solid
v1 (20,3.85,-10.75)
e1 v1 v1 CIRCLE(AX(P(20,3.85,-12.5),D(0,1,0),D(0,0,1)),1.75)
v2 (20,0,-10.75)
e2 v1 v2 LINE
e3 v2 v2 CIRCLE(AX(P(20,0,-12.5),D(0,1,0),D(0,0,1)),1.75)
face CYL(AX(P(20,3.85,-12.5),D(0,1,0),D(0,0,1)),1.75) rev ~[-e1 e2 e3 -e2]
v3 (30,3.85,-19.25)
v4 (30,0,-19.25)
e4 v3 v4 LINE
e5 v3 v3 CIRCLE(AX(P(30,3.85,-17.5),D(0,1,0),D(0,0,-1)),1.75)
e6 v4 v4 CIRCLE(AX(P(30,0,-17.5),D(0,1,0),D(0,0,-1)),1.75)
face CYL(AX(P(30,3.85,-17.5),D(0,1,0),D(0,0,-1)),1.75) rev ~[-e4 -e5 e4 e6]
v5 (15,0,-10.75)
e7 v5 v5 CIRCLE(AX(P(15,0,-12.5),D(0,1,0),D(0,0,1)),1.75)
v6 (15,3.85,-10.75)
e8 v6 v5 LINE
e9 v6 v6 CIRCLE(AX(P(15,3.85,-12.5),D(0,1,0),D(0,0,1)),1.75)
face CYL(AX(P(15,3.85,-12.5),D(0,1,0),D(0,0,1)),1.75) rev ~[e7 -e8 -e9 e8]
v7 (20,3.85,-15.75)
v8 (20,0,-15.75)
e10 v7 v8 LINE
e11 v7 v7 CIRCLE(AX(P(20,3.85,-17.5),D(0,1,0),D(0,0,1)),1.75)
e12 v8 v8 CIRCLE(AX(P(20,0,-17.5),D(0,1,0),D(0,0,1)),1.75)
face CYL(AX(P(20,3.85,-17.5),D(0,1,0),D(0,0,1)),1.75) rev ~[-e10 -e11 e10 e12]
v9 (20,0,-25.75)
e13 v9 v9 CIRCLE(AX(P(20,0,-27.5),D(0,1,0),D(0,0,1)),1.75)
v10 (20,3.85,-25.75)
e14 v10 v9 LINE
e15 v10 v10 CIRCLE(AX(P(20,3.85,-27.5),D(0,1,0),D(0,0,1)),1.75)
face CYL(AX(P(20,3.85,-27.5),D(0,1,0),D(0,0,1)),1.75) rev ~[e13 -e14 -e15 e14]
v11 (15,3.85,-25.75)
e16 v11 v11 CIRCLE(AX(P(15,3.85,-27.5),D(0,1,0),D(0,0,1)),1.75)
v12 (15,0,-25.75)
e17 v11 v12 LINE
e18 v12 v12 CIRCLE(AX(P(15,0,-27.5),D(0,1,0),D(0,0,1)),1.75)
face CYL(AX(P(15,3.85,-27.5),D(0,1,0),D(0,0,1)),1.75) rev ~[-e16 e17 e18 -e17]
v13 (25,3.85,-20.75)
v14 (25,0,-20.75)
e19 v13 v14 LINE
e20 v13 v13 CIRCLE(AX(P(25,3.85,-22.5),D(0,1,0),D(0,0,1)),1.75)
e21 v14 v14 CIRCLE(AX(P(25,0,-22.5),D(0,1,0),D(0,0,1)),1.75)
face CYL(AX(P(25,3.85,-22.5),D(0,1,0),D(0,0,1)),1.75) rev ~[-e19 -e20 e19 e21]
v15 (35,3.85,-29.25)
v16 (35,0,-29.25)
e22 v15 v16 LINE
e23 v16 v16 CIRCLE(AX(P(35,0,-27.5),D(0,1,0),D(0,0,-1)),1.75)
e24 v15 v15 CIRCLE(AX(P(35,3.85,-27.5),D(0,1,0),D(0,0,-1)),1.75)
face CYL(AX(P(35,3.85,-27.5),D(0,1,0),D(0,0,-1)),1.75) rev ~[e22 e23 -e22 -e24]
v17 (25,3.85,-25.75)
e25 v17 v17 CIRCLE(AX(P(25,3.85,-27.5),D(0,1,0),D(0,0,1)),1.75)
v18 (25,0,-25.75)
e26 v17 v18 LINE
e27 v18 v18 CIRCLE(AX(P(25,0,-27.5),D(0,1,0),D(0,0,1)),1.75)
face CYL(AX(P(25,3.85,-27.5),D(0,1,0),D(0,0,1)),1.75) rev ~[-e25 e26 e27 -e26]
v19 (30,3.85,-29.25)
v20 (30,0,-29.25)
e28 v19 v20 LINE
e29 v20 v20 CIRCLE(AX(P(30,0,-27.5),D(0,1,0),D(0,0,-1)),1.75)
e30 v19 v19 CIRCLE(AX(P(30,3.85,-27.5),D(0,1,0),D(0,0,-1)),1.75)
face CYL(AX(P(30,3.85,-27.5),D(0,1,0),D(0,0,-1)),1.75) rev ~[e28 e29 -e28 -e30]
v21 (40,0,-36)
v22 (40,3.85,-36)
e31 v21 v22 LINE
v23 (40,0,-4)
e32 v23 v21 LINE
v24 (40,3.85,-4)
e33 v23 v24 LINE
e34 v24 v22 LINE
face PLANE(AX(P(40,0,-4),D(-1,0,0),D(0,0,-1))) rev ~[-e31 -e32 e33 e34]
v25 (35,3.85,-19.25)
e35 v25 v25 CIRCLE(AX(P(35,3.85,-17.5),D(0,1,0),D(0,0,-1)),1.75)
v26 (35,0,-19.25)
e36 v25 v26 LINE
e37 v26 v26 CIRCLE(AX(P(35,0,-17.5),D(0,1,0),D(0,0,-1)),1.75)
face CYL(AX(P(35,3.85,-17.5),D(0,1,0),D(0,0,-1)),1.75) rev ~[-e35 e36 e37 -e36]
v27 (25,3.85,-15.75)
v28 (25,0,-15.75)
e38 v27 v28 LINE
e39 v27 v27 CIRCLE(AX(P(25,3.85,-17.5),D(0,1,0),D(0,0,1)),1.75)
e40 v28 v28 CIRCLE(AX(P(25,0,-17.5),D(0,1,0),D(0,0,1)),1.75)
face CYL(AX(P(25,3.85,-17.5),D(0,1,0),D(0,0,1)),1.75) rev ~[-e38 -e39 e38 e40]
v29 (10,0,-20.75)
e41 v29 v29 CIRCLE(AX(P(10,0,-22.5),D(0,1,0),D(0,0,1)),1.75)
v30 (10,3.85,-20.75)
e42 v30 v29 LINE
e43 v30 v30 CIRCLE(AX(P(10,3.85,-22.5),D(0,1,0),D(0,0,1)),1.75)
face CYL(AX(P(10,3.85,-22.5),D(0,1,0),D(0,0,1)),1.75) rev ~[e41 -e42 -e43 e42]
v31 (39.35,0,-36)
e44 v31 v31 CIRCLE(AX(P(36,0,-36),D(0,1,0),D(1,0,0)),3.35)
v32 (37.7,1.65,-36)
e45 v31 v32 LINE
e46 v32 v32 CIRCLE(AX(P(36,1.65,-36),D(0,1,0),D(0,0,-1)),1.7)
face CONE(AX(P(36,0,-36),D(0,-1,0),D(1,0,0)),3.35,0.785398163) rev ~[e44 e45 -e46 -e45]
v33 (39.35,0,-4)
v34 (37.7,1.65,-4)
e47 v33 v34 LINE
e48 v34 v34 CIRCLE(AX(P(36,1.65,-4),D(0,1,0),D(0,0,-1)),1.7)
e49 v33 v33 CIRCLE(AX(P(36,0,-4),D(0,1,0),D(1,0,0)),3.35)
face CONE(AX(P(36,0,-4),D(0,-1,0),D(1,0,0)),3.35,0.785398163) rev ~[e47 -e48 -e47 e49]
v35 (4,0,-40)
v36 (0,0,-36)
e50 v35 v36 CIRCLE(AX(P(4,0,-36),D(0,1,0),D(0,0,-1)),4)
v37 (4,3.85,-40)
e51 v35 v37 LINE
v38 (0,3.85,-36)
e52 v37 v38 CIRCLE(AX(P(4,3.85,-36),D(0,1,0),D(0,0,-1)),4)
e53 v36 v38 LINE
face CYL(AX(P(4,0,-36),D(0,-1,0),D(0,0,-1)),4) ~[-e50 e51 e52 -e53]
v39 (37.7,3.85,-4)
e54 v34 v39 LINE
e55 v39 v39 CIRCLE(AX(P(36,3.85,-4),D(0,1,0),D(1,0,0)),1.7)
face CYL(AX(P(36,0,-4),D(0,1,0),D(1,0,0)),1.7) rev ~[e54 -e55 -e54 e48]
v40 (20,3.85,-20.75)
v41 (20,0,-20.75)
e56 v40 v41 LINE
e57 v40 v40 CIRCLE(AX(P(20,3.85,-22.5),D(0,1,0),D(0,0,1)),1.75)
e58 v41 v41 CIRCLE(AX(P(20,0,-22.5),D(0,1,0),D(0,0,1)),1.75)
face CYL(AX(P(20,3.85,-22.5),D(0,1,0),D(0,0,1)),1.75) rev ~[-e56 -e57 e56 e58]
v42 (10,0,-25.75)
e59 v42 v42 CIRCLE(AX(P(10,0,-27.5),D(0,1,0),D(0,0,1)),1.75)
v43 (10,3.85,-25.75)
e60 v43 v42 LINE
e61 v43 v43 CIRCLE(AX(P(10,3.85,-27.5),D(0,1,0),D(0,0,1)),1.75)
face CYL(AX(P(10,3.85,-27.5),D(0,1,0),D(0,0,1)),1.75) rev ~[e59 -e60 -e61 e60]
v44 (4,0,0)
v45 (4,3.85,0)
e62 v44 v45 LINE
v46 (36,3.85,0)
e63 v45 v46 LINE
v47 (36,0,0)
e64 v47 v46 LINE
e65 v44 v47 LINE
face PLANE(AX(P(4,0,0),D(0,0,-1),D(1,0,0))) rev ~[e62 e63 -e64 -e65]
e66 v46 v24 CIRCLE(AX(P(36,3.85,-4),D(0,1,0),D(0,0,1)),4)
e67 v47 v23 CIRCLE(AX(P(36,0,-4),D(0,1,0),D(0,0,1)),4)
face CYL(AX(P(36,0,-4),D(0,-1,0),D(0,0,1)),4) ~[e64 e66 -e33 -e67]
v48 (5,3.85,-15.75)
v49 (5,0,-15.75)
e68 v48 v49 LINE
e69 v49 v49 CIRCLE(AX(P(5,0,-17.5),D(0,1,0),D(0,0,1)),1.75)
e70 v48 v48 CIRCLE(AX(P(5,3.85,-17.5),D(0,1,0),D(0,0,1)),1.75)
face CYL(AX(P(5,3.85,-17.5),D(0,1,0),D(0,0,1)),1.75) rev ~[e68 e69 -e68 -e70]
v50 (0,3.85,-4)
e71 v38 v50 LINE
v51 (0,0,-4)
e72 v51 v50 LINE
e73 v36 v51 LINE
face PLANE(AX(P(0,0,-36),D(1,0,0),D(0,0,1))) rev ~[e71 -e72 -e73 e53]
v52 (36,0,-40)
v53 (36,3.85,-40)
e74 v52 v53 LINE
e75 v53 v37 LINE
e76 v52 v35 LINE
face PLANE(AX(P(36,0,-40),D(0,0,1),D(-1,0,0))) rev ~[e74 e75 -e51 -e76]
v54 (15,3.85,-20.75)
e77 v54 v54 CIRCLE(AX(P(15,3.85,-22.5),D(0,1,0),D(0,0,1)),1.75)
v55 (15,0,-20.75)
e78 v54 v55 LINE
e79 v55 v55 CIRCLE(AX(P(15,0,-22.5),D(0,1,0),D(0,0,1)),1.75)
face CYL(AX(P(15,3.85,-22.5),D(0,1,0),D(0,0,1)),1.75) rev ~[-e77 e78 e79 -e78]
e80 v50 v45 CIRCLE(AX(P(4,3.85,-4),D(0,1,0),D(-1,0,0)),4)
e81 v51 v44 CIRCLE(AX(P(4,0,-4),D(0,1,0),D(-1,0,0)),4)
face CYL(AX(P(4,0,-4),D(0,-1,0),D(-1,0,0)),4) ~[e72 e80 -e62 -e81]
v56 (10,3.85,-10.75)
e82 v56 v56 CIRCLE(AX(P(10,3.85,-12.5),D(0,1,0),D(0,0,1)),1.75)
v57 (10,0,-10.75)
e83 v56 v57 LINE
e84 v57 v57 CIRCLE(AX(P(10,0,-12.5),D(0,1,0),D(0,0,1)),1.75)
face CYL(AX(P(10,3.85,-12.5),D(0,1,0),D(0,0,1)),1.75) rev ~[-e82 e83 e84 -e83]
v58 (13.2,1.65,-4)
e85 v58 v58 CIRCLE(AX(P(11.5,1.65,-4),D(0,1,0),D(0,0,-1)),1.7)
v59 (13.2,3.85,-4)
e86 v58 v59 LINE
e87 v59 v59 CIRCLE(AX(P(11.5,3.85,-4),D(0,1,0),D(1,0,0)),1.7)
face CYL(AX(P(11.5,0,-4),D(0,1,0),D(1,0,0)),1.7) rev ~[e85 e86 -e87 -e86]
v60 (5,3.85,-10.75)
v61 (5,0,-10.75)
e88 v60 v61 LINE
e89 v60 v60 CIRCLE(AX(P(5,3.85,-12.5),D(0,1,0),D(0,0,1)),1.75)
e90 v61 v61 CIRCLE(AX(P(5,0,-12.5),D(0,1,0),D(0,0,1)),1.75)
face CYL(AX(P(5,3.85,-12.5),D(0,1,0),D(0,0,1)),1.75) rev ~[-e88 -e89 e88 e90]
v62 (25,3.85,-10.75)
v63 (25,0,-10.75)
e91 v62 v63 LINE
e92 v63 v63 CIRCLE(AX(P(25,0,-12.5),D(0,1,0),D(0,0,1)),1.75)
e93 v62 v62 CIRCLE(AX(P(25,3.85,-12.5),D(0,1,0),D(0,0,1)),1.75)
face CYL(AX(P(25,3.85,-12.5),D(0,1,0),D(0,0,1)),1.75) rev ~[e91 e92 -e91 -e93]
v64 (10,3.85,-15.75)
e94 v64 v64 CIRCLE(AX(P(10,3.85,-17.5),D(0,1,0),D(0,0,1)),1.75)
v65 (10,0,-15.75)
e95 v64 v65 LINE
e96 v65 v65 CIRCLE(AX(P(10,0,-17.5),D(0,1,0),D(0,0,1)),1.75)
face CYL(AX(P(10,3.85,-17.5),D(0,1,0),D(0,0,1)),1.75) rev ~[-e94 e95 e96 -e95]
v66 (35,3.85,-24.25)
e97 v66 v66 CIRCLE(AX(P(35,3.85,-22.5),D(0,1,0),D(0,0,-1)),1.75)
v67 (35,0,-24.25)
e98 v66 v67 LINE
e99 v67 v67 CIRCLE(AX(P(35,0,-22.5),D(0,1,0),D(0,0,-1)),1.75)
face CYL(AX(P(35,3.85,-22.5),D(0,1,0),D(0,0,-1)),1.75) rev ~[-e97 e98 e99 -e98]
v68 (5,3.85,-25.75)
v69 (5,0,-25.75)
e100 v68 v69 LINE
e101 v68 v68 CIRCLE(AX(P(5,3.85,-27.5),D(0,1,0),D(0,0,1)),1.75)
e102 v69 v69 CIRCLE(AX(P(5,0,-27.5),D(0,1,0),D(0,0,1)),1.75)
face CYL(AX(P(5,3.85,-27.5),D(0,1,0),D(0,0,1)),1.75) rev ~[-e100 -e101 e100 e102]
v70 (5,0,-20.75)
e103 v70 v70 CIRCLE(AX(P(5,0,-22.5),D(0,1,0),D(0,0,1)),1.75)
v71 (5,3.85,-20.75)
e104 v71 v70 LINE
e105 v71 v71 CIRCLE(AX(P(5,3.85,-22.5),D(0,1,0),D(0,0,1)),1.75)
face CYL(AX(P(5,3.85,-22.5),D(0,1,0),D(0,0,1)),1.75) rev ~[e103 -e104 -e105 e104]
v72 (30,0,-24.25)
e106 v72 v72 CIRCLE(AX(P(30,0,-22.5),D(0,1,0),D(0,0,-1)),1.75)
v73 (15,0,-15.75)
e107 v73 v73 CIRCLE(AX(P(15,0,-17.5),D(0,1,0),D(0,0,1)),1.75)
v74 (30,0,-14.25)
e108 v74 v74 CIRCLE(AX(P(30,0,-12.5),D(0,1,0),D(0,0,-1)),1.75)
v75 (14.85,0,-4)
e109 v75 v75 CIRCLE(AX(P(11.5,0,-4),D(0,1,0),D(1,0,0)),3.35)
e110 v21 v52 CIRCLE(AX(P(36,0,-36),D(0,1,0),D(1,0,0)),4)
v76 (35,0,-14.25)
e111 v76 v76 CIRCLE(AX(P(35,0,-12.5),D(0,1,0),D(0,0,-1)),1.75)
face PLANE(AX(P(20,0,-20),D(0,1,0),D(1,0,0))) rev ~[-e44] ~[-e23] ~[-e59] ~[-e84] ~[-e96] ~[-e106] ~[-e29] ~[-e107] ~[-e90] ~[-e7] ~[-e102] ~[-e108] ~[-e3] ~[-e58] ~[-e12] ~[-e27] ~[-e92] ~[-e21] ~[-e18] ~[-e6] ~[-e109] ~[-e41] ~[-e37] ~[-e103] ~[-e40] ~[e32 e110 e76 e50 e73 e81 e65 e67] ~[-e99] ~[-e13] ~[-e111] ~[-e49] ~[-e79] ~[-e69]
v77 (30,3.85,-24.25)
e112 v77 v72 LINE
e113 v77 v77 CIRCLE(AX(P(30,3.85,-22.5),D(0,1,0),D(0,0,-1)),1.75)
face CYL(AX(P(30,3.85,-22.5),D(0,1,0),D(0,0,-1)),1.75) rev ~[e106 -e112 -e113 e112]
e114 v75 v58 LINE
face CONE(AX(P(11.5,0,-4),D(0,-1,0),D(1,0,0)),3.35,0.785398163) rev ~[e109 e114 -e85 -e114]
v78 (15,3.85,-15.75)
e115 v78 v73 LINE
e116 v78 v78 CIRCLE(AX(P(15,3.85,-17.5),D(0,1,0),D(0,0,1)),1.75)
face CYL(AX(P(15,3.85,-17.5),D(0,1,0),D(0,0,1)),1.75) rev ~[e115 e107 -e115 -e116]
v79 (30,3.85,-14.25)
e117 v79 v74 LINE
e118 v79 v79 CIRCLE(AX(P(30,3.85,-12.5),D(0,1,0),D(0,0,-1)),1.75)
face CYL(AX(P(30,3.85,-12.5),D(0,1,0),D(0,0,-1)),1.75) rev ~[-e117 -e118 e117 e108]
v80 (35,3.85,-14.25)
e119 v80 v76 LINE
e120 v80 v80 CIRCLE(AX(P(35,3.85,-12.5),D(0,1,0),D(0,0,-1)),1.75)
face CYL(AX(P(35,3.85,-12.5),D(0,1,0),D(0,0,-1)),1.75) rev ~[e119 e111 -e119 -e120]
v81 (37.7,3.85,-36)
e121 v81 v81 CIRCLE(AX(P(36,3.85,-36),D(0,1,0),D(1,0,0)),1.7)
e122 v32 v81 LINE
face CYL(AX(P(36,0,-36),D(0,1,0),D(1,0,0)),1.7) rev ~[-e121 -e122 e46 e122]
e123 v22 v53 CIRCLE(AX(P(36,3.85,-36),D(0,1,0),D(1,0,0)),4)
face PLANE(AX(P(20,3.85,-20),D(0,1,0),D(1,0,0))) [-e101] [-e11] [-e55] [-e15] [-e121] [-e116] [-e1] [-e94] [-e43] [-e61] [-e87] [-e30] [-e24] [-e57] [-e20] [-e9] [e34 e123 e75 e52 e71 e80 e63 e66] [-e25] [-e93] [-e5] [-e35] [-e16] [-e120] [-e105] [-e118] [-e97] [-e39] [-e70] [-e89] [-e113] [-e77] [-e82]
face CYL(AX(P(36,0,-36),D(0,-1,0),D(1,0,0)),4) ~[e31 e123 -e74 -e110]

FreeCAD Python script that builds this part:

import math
import FreeCAD as App
import Part
import Sketcher

V = App.Vector

doc = App.newDocument("Part")
body = doc.addObject("PartDesign::Body", "Body")

# Sketch on XZ plane
sketch1 = body.newObject("Sketcher::SketchObject", "Sketch")
sketch1.AttachmentSupport = (doc.getObject("XZ_Plane"), [""])
sketch1.MapMode = "FlatFace"
sketch1.addGeometry([
    Part.LineSegment(V(4, 0, 0), V(36, 0, 0)),  # 0
    Part.ArcOfCircle(Part.Circle(V(36, -4, 0), V(0, 0, 1), 4), math.radians(0), math.radians(90)),  # 1
    Part.LineSegment(V(40, -4, 0), V(40, -36, 0)),  # 2
    Part.ArcOfCircle(Part.Circle(V(36, -36, 0), V(0, 0, 1), 4), math.radians(-90), math.radians(0)),  # 3
    Part.LineSegment(V(36, -40, 0), V(4, -40, 0)),  # 4
    Part.ArcOfCircle(Part.Circle(V(4, -36, 0), V(0, 0, 1), 4), math.radians(180), math.radians(270)),  # 5
    Part.LineSegment(V(0, -36, 0), V(0, -4, 0)),  # 6
    Part.ArcOfCircle(Part.Circle(V(4, -4, 0), V(0, 0, 1), 4), math.radians(90), math.radians(180)),  # 7
    Part.Circle(V(11.5, -4, 0), V(0, 0, 1), 1.6),  # 8
    Part.Circle(V(36, -4, 0), V(0, 0, 1), 1.6),  # 9
    Part.Circle(V(36, -36, 0), V(0, 0, 1), 1.6),  # 10
], False)
sketch1.addConstraint([
    Sketcher.Constraint("Tangent", 0, 2, 1, 2),
    Sketcher.Constraint("Tangent", 1, 1, 2, 1),
    Sketcher.Constraint("Tangent", 2, 2, 3, 2),
    Sketcher.Constraint("Tangent", 3, 1, 4, 1),
    Sketcher.Constraint("Tangent", 4, 2, 5, 2),
    Sketcher.Constraint("Tangent", 5, 1, 6, 1),
    Sketcher.Constraint("Tangent", 6, 2, 7, 2),
    Sketcher.Constraint("Tangent", 7, 1, 0, 1),
    Sketcher.Constraint("Horizontal", 0),
    Sketcher.Constraint("Vertical", 2),
    Sketcher.Constraint("Horizontal", 4),
    Sketcher.Constraint("Vertical", 6),
    Sketcher.Constraint("Coincident", 9, 3, 1, 3),
    Sketcher.Constraint("Coincident", 10, 3, 3, 3),
    Sketcher.Constraint("Equal", 1, 3),
    Sketcher.Constraint("Equal", 3, 5),
    Sketcher.Constraint("Equal", 5, 7),
    Sketcher.Constraint("Equal", 8, 9),
    Sketcher.Constraint("Equal", 9, 10),
    Sketcher.Constraint("PointOnObject", 0, 2, -1),
    Sketcher.Constraint("PointOnObject", 5, 1, -2),
    Sketcher.Constraint("Horizontal", 7, 3, 8, 3),
    Sketcher.Constraint("Equal", 4, 2),
    Sketcher.Constraint("Radius", 1, 4.0),
    Sketcher.Constraint("Diameter", 8, 3.2),
    Sketcher.Constraint("DistanceX", 0, 1, 0, 2, 32.0),
    Sketcher.Constraint("DistanceX", -1, 1, 8, 3, 11.5),
])
pad1 = body.newObject("PartDesign::Pad", "Pad")
pad1.Profile = sketch1
pad1.Length = 3.85
pad1.Reversed = True

# Sketch on XZ plane
sketch2 = body.newObject("Sketcher::SketchObject", "Sketch001")
sketch2.AttachmentSupport = (doc.getObject("XZ_Plane"), [""])
sketch2.MapMode = "FlatFace"
sketch2.addGeometry([
    Part.Circle(V(11.5, -4, 0), V(0, 0, 1), 1.7),
    Part.Circle(V(36, -4, 0), V(0, 0, 1), 1.7),
    Part.Circle(V(36, -36, 0), V(0, 0, 1), 1.7),
], False)
sketch2.addConstraint([
    Sketcher.Constraint("Equal", 0, 1),
    Sketcher.Constraint("Equal", 1, 2),
    Sketcher.Constraint("Horizontal", 0, 3, 1, 3),
    Sketcher.Constraint("Vertical", 1, 3, 2, 3),
    Sketcher.Constraint("Diameter", 0, 3.4),
    Sketcher.Constraint("DistanceY", 0, 3, -1, 1, 4.0),
    Sketcher.Constraint("DistanceX", -1, 1, 1, 3, 36.0),
    Sketcher.Constraint("DistanceY", 2, 3, -1, 1, 36.0),
    Sketcher.Constraint("DistanceX", -1, 1, 0, 3, 11.5),
])
doc.recompute()
hole = body.newObject("PartDesign::Hole", "Hole")
hole.Profile = sketch2
hole.ThreadType = "None"
hole.Diameter = 3.4
hole.DepthType = "ThroughAll"
hole.HoleCutType = "Countersink"
hole.HoleCutDiameter = 6.7
hole.HoleCutCountersinkAngle = 90

# Sketch on XZ plane
sketch3 = body.newObject("Sketcher::SketchObject", "Sketch002")
sketch3.AttachmentSupport = (doc.getObject("XZ_Plane"), [""])
sketch3.MapMode = "FlatFace"
sketch3.AttachmentOffset = App.Placement(V(0, 0, -3.85), App.Rotation())
sketch3.addGeometry([
    Part.Circle(V(5, -22.5, 0), V(0, 0, 1), 1.8),  # 0
    Part.Circle(V(10, -22.5, 0), V(0, 0, 1), 1.8),  # 1
    Part.Circle(V(5, -17.5, 0), V(0, 0, 1), 1.8),  # 2
    Part.Circle(V(10, -17.5, 0), V(0, 0, 1), 1.8),  # 3
    Part.Circle(V(30, -17.5, 0), V(0, 0, 1), 1.8),  # 4
    Part.Circle(V(35, -17.5, 0), V(0, 0, 1), 1.8),  # 5
    Part.Circle(V(30, -22.5, 0), V(0, 0, 1), 1.8),  # 6
    Part.Circle(V(35, -22.5, 0), V(0, 0, 1), 1.8),  # 7
    Part.Circle(V(15, -22.5, 0), V(0, 0, 1), 1.8),  # 8
    Part.Circle(V(15, -17.5, 0), V(0, 0, 1), 1.8),  # 9
    Part.Circle(V(20, -22.5, 0), V(0, 0, 1), 1.8),  # 10
    Part.Circle(V(20, -17.5, 0), V(0, 0, 1), 1.8),  # 11
    Part.Circle(V(25, -22.5, 0), V(0, 0, 1), 1.8),  # 12
    Part.Circle(V(25, -17.5, 0), V(0, 0, 1), 1.8),  # 13
    Part.Circle(V(5, -27.5, 0), V(0, 0, 1), 1.8),  # 14
    Part.Circle(V(10, -27.5, 0), V(0, 0, 1), 1.8),  # 15
    Part.Circle(V(30, -27.5, 0), V(0, 0, 1), 1.8),  # 16
    Part.Circle(V(35, -27.5, 0), V(0, 0, 1), 1.8),  # 17
    Part.Circle(V(15, -27.5, 0), V(0, 0, 1), 1.8),  # 18
    Part.Circle(V(20, -27.5, 0), V(0, 0, 1), 1.8),  # 19
    Part.Circle(V(25, -27.5, 0), V(0, 0, 1), 1.8),  # 20
    Part.Circle(V(5, -12.5, 0), V(0, 0, 1), 1.8),  # 21
    Part.Circle(V(10, -12.5, 0), V(0, 0, 1), 1.8),  # 22
    Part.Circle(V(30, -12.5, 0), V(0, 0, 1), 1.8),  # 23
    Part.Circle(V(35, -12.5, 0), V(0, 0, 1), 1.8),  # 24
    Part.Circle(V(15, -12.5, 0), V(0, 0, 1), 1.8),  # 25
    Part.Circle(V(20, -12.5, 0), V(0, 0, 1), 1.8),  # 26
    Part.Circle(V(25, -12.5, 0), V(0, 0, 1), 1.8),  # 27
], False)
sketch3.addConstraint([
    Sketcher.Constraint("Equal", 0, 1),
    Sketcher.Constraint("Equal", 1, 2),
    Sketcher.Constraint("Equal", 2, 3),
    Sketcher.Constraint("Equal", 3, 4),
    Sketcher.Constraint("Equal", 4, 5),
    Sketcher.Constraint("Equal", 5, 6),
    Sketcher.Constraint("Equal", 6, 7),
    Sketcher.Constraint("Equal", 7, 8),
    Sketcher.Constraint("Equal", 8, 9),
    Sketcher.Constraint("Equal", 9, 10),
    Sketcher.Constraint("Equal", 10, 11),
    Sketcher.Constraint("Equal", 11, 12),
    Sketcher.Constraint("Equal", 12, 13),
    Sketcher.Constraint("Equal", 13, 14),
    Sketcher.Constraint("Equal", 14, 15),
    Sketcher.Constraint("Equal", 15, 16),
    Sketcher.Constraint("Equal", 16, 17),
    Sketcher.Constraint("Equal", 17, 18),
    Sketcher.Constraint("Equal", 18, 19),
    Sketcher.Constraint("Equal", 19, 20),
    Sketcher.Constraint("Equal", 20, 21),
    Sketcher.Constraint("Equal", 21, 22),
    Sketcher.Constraint("Equal", 22, 23),
    Sketcher.Constraint("Equal", 23, 24),
    Sketcher.Constraint("Equal", 24, 25),
    Sketcher.Constraint("Equal", 25, 26),
    Sketcher.Constraint("Equal", 26, 27),
    Sketcher.Constraint("Horizontal", 0, 3, 1, 3),
    Sketcher.Constraint("Horizontal", 2, 3, 3, 3),
    Sketcher.Constraint("Horizontal", 3, 3, 4, 3),
    Sketcher.Constraint("Horizontal", 4, 3, 5, 3),
    Sketcher.Constraint("Horizontal", 1, 3, 6, 3),
    Sketcher.Constraint("Horizontal", 6, 3, 7, 3),
    Sketcher.Constraint("Horizontal", 7, 3, 8, 3),
    Sketcher.Constraint("Horizontal", 5, 3, 9, 3),
    Sketcher.Constraint("Horizontal", 8, 3, 10, 3),
    Sketcher.Constraint("Horizontal", 9, 3, 11, 3),
    Sketcher.Constraint("Horizontal", 10, 3, 12, 3),
    Sketcher.Constraint("Horizontal", 11, 3, 13, 3),
    Sketcher.Constraint("Horizontal", 14, 3, 15, 3),
    Sketcher.Constraint("Horizontal", 15, 3, 16, 3),
    Sketcher.Constraint("Horizontal", 16, 3, 17, 3),
    Sketcher.Constraint("Horizontal", 17, 3, 18, 3),
    Sketcher.Constraint("Horizontal", 18, 3, 19, 3),
    Sketcher.Constraint("Horizontal", 19, 3, 20, 3),
    Sketcher.Constraint("Horizontal", 21, 3, 22, 3),
    Sketcher.Constraint("Horizontal", 22, 3, 23, 3),
    Sketcher.Constraint("Horizontal", 23, 3, 24, 3),
    Sketcher.Constraint("Horizontal", 24, 3, 25, 3),
    Sketcher.Constraint("Horizontal", 25, 3, 26, 3),
    Sketcher.Constraint("Horizontal", 26, 3, 27, 3),
    Sketcher.Constraint("Vertical", 0, 3, 2, 3),
    Sketcher.Constraint("Vertical", 1, 3, 3, 3),
    Sketcher.Constraint("Vertical", 4, 3, 6, 3),
    Sketcher.Constraint("Vertical", 5, 3, 7, 3),
    Sketcher.Constraint("Vertical", 8, 3, 9, 3),
    Sketcher.Constraint("Vertical", 10, 3, 11, 3),
    Sketcher.Constraint("Vertical", 12, 3, 13, 3),
    Sketcher.Constraint("Vertical", 2, 3, 14, 3),
    Sketcher.Constraint("Vertical", 3, 3, 15, 3),
    Sketcher.Constraint("Vertical", 6, 3, 16, 3),
    Sketcher.Constraint("Vertical", 7, 3, 17, 3),
    Sketcher.Constraint("Vertical", 9, 3, 18, 3),
    Sketcher.Constraint("Vertical", 11, 3, 19, 3),
    Sketcher.Constraint("Vertical", 13, 3, 20, 3),
    Sketcher.Constraint("Vertical", 14, 3, 21, 3),
    Sketcher.Constraint("Vertical", 15, 3, 22, 3),
    Sketcher.Constraint("Vertical", 16, 3, 23, 3),
    Sketcher.Constraint("Vertical", 17, 3, 24, 3),
    Sketcher.Constraint("Vertical", 18, 3, 25, 3),
    Sketcher.Constraint("Vertical", 19, 3, 26, 3),
    Sketcher.Constraint("Vertical", 20, 3, 27, 3),
    Sketcher.Constraint("Diameter", 0, 3.5),
    Sketcher.Constraint("DistanceX", -1, 1, 0, 3, 5.0),
    Sketcher.Constraint("DistanceX", -1, 1, 1, 3, 10.0),
    Sketcher.Constraint("DistanceX", -1, 1, 4, 3, 30.0),
    Sketcher.Constraint("DistanceX", -1, 1, 5, 3, 35.0),
    Sketcher.Constraint("DistanceX", -1, 1, 8, 3, 15.0),
    Sketcher.Constraint("DistanceX", -1, 1, 10, 3, 20.0),
    Sketcher.Constraint("DistanceX", -1, 1, 12, 3, 25.0),
    Sketcher.Constraint("DistanceY", 0, 3, 2, 3, 5.0),
    Sketcher.Constraint("DistanceY", 14, 3, 0, 3, 5.0),
    Sketcher.Constraint("DistanceY", 2, 3, 21, 3, 5.0),
    Sketcher.Constraint("DistanceY", 0, 3, -1, 1, 22.5),
])
pocket1 = body.newObject("PartDesign::Pocket", "Pocket")
pocket1.Profile = sketch3
pocket1.Length = 12.5
pocket1.Reversed = True

doc.recompute()
